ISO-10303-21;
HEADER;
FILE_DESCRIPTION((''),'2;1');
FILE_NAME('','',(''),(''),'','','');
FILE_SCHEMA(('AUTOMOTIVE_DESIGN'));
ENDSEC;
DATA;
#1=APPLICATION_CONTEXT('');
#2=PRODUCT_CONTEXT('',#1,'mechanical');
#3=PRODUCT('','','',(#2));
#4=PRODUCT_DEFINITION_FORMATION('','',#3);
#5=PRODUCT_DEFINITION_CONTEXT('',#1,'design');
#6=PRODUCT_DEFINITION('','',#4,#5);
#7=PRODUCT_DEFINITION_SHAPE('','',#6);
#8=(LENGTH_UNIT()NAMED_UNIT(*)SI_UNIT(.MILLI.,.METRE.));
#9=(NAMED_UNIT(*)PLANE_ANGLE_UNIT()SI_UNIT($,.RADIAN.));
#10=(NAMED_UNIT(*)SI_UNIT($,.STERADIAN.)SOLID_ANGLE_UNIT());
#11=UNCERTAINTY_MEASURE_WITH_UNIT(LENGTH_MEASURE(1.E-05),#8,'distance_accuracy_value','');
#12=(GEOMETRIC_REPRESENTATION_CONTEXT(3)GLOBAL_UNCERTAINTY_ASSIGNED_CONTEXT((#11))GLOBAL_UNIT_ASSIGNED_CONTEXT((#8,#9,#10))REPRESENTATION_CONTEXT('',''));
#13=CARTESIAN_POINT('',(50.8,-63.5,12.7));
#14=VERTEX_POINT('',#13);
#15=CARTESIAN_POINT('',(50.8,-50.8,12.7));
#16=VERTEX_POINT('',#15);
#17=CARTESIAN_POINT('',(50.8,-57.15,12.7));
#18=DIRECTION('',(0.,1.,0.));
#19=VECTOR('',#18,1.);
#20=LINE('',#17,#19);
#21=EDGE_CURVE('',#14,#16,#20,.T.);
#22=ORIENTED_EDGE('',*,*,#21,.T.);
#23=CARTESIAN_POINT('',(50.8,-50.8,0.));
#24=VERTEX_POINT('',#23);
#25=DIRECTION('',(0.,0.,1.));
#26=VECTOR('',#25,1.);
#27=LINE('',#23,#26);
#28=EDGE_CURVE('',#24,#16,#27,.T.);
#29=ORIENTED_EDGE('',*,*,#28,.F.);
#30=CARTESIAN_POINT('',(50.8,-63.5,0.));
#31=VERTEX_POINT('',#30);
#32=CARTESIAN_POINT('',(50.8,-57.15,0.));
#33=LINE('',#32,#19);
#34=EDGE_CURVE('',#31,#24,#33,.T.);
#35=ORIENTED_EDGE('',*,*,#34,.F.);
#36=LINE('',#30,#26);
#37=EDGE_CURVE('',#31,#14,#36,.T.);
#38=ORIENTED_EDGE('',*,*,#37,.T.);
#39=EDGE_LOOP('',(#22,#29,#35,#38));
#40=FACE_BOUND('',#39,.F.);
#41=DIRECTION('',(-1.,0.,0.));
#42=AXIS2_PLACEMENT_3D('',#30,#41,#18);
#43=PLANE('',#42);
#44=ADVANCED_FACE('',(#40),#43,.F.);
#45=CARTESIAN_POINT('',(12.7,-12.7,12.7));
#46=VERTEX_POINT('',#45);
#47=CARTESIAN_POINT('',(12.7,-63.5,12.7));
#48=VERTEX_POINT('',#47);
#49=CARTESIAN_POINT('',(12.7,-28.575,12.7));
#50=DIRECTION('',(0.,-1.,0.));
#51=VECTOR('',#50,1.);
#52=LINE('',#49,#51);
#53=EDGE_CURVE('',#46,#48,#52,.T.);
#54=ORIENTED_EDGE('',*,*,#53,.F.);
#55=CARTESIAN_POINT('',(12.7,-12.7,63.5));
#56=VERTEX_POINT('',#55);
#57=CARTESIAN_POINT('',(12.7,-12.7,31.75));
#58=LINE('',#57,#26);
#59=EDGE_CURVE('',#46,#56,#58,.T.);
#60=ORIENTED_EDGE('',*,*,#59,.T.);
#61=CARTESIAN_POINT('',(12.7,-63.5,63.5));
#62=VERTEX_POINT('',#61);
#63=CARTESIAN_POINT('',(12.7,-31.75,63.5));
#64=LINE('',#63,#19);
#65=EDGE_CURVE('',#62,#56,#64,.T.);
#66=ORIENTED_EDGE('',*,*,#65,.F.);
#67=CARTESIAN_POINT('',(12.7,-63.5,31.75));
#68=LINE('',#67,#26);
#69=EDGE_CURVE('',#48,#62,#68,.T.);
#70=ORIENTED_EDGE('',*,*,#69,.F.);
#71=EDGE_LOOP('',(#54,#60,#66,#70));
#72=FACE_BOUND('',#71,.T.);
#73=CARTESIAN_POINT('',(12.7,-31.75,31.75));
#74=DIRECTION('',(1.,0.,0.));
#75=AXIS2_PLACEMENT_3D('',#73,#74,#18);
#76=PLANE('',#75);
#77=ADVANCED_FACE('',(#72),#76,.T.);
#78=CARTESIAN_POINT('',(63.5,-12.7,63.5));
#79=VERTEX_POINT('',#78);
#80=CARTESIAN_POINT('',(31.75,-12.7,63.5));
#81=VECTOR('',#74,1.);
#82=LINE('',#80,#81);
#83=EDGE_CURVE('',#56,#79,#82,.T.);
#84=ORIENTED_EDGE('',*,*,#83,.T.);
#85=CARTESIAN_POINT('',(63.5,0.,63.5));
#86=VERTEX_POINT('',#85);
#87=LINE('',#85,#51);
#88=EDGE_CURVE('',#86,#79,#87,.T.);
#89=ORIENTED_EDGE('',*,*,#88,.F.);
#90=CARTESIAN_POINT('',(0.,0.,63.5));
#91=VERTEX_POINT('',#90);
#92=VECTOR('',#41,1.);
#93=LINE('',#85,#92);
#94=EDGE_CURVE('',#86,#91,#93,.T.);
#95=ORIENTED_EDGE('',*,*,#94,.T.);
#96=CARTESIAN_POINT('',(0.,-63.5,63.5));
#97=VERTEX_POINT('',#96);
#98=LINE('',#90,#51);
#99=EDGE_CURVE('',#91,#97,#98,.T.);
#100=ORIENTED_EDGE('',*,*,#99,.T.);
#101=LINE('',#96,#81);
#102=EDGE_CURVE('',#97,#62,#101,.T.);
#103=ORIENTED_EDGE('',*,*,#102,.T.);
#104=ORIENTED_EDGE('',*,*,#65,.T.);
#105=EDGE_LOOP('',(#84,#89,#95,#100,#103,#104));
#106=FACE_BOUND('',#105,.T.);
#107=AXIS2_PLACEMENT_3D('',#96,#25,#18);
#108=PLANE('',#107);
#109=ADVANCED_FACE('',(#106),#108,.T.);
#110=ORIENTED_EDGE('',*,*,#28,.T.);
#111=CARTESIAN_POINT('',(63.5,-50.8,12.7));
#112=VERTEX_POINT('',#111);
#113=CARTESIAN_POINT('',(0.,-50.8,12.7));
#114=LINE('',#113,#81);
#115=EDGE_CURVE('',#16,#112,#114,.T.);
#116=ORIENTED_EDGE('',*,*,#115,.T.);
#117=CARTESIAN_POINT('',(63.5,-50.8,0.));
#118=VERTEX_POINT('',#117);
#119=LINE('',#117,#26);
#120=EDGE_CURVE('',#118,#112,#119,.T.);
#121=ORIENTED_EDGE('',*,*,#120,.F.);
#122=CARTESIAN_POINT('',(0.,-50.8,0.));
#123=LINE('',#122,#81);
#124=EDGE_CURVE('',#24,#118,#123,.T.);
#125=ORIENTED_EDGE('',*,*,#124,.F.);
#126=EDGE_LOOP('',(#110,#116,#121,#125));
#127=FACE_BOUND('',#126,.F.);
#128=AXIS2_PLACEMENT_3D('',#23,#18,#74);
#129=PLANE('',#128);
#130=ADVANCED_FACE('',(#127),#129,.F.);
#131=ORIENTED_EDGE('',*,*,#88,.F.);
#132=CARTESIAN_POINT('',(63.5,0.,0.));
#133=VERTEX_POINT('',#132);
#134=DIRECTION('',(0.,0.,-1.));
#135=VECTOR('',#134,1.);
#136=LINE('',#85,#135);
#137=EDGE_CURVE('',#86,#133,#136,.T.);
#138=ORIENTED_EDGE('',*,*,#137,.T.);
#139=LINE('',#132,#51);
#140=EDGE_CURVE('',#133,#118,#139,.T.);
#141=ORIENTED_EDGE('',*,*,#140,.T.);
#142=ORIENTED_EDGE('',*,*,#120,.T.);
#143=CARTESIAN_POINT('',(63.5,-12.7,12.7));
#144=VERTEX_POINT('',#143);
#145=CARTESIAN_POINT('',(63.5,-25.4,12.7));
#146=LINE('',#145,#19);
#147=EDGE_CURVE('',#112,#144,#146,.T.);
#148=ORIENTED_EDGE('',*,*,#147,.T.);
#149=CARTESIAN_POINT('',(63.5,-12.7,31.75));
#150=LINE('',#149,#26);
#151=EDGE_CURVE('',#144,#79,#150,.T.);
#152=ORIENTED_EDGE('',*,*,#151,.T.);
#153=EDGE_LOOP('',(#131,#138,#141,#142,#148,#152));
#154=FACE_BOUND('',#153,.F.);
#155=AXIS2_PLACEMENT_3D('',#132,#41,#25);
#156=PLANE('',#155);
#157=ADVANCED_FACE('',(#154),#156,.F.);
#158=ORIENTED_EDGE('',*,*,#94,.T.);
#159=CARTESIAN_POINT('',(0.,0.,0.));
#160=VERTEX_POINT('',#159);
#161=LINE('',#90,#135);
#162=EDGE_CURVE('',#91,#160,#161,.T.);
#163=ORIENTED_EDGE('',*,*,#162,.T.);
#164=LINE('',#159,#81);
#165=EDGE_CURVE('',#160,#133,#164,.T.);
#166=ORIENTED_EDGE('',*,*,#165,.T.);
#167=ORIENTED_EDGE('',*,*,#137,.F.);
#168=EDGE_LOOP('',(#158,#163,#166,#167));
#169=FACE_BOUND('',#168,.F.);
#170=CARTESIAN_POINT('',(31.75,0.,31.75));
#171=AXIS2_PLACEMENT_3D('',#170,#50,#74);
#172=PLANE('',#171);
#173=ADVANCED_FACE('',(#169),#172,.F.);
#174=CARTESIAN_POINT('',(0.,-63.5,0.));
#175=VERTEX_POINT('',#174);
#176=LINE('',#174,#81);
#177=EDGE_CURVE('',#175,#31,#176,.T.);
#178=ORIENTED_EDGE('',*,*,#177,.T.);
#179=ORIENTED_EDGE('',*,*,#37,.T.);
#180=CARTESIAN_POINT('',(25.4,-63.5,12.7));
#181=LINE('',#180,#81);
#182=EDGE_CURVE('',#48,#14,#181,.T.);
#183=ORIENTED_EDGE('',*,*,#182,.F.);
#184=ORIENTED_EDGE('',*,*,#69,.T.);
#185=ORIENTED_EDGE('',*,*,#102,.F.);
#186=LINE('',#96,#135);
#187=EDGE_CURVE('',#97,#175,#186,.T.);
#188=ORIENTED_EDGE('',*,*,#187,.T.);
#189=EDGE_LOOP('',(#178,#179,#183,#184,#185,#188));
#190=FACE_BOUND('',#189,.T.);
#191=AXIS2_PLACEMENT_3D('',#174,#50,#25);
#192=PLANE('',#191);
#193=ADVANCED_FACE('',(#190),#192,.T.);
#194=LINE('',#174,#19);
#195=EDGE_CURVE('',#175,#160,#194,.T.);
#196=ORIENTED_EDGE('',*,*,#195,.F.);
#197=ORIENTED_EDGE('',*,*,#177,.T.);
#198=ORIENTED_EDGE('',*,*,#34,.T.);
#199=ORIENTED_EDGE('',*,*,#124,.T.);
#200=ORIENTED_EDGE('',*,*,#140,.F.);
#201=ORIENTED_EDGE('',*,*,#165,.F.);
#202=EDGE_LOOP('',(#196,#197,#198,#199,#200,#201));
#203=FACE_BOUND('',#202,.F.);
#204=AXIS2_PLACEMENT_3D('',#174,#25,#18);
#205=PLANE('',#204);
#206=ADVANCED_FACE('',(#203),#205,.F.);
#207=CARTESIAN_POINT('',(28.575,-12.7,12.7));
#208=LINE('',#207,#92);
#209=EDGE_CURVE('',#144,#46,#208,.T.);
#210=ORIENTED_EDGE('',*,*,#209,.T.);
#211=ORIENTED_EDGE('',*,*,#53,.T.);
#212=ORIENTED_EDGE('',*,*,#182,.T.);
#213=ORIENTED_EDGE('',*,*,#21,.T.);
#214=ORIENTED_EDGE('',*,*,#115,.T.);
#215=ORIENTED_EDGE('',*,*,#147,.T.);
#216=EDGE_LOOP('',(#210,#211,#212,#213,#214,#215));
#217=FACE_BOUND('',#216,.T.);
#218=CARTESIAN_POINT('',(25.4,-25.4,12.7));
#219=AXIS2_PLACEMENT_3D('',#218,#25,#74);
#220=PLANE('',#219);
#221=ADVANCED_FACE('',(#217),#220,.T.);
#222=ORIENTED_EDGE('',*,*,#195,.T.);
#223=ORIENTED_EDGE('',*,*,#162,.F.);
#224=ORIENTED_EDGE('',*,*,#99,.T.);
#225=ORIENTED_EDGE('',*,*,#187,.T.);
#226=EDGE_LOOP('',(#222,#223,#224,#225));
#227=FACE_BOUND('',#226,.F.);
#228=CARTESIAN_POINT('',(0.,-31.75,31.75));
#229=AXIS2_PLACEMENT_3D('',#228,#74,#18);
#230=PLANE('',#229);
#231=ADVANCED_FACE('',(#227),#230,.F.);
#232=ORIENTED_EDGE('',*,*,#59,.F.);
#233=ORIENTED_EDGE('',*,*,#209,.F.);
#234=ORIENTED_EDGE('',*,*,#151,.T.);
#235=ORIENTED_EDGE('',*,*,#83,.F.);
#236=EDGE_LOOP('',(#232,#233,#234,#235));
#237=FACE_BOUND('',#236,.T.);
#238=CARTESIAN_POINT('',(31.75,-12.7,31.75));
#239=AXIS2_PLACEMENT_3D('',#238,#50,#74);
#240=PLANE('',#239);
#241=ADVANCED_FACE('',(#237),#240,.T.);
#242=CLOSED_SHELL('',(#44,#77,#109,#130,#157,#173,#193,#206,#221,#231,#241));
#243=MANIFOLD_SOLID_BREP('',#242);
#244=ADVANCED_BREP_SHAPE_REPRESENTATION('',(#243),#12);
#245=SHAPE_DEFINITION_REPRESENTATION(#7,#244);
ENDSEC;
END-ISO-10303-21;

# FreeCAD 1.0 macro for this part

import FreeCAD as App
import Part
import Sketcher
from FreeCAD import Vector
Q = App.Units.Quantity


def add_polygon(sketch, points):
    """Adds a closed chain of lines whose ends are joined by coincident constraints."""
    first, n = sketch.GeometryCount, len(points)
    for a, b in zip(points, points[1:] + points[:1]):
        sketch.addGeometry(Part.LineSegment(App.Vector(*a, 0), App.Vector(*b, 0)), False)
    for i in range(n):
        sketch.addConstraint(Sketcher.Constraint("Coincident", first + i, 2, first + (i + 1) % n, 1))

doc = App.newDocument("Part")
body = doc.addObject("PartDesign::Body", "Body")

sketch1 = body.newObject("Sketcher::SketchObject", "Sketch")
sketch1.AttachmentSupport = (doc.getObject("XZ_Plane"), [""])
sketch1.MapMode = "FlatFace"
add_polygon(sketch1, [(0, 64), (0, 0), (64, 0), (64, 64)])
sketch1.addConstraint(Sketcher.Constraint("Vertical", 0))
sketch1.addConstraint(Sketcher.Constraint("Horizontal", 1))
sketch1.addConstraint(Sketcher.Constraint("Vertical", 2))
sketch1.addConstraint(Sketcher.Constraint("Horizontal", 3))
sketch1.addConstraint(Sketcher.Constraint("Coincident", 0, 2, -1, 1))
sketch1.addConstraint(Sketcher.Constraint("Equal", 3, 0))
sketch1.addConstraint(Sketcher.Constraint("DistanceX", 1, 1, 1, 2, Q("2.5 in")))
pad1 = body.newObject("PartDesign::Pad", "Pad")
pad1.Profile = sketch1
pad1.Length = Q("0.5 in")

sketch2 = body.newObject("Sketcher::SketchObject", "Sketch001")
sketch2.AttachmentSupport = (doc.getObject("YZ_Plane"), [""])
sketch2.MapMode = "FlatFace"
add_polygon(sketch2, [(-64, 64), (-64, 0), (0, 0), (0, 64)])
sketch2.addConstraint(Sketcher.Constraint("Vertical", 0))
sketch2.addConstraint(Sketcher.Constraint("Horizontal", 1))
sketch2.addConstraint(Sketcher.Constraint("Vertical", 2))
sketch2.addConstraint(Sketcher.Constraint("Horizontal", 3))
sketch2.addConstraint(Sketcher.Constraint("Coincident", 1, 2, -1, 1))
sketch2.addConstraint(Sketcher.Constraint("Equal", 3, 0))
sketch2.addConstraint(Sketcher.Constraint("DistanceX", 1, 1, 1, 2, Q("2.5 in")))
pad2 = body.newObject("PartDesign::Pad", "Pad001")
pad2.Profile = sketch2
pad2.Length = Q("0.5 in")

sketch3 = body.newObject("Sketcher::SketchObject", "Sketch002")
sketch3.AttachmentSupport = (doc.getObject("XY_Plane"), [""])
sketch3.MapMode = "FlatFace"
add_polygon(sketch3, [(0, 0), (0, -64), (51, -64), (51, -51), (64, -51), (64, 0)])
sketch3.addConstraint(Sketcher.Constraint("Vertical", 0))
sketch3.addConstraint(Sketcher.Constraint("Horizontal", 1))
sketch3.addConstraint(Sketcher.Constraint("Vertical", 2))
sketch3.addConstraint(Sketcher.Constraint("Horizontal", 3))
sketch3.addConstraint(Sketcher.Constraint("Vertical", 4))
sketch3.addConstraint(Sketcher.Constraint("Horizontal", 5))
sketch3.addConstraint(Sketcher.Constraint("Coincident", 5, 2, -1, 1))
sketch3.addConstraint(Sketcher.Constraint("Equal", 5, 0))
sketch3.addConstraint(Sketcher.Constraint("Equal", 3, 2))
sketch3.addConstraint(Sketcher.Constraint("DistanceX", 1, 1, 1, 2, Q("2 in")))
sketch3.addConstraint(Sketcher.Constraint("DistanceX", 3, 1, 3, 2, Q("0.5 in")))
pad3 = body.newObject("PartDesign::Pad", "Pad002")
pad3.Profile = sketch3
pad3.Length = Q("0.5 in")

doc.recompute()
